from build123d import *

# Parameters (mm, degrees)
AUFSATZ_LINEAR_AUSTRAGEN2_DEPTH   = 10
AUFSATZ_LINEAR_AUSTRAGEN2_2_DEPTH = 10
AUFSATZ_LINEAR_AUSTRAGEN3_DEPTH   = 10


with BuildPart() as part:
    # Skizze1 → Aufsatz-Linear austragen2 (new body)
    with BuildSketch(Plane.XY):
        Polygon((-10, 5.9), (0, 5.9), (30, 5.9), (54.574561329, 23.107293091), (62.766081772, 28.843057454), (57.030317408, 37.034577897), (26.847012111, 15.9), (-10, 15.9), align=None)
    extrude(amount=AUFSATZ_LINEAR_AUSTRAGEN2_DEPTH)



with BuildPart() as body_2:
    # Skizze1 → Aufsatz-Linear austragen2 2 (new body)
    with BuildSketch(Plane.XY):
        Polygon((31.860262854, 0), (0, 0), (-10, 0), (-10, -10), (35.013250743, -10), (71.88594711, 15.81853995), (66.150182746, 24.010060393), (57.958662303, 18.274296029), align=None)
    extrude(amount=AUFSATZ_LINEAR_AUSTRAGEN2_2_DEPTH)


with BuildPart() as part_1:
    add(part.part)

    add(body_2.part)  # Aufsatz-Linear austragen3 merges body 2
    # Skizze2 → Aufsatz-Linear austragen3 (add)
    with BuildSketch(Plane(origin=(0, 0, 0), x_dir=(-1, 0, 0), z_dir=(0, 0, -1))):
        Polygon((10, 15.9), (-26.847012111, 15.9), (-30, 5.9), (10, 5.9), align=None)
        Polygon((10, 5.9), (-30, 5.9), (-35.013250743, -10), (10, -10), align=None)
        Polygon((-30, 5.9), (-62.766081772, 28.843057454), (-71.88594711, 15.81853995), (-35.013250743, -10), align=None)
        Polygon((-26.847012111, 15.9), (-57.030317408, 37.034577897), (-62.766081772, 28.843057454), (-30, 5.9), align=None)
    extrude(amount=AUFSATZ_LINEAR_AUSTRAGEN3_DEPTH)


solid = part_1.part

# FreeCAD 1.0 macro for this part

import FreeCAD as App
import Part
import Sketcher
from FreeCAD import Vector
Q = App.Units.Quantity

doc = App.newDocument("Part")
body = doc.addObject("PartDesign::Body", "Body")

sketch1 = body.newObject("Sketcher::SketchObject", "Sketch")
sketch1.AttachmentSupport = (doc.getObject("XY_Plane"), [""])
sketch1.MapMode = "FlatFace"
sketch1.addGeometry([
    Part.LineSegment(Vector(-10, 6, 0), Vector(30, 6, 0)),
    Part.LineSegment(Vector(30, 6, 0), Vector(55, 23, 0)),
    Part.LineSegment(Vector(55, 23, 0), Vector(63, 29, 0)),
    Part.LineSegment(Vector(63, 29, 0), Vector(57, 37, 0)),
    Part.LineSegment(Vector(57, 37, 0), Vector(27, 16, 0)),
    Part.LineSegment(Vector(27, 16, 0), Vector(-10, 16, 0)),
    Part.LineSegment(Vector(-10, 16, 0), Vector(-10, 6, 0)),
], False)
sketch1.addConstraint([
    Sketcher.Constraint("Coincident", 0, 2, 1, 1),
    Sketcher.Constraint("Coincident", 1, 2, 2, 1),
    Sketcher.Constraint("Coincident", 2, 2, 3, 1),
    Sketcher.Constraint("Coincident", 3, 2, 4, 1),
    Sketcher.Constraint("Coincident", 4, 2, 5, 1),
    Sketcher.Constraint("Coincident", 5, 2, 6, 1),
    Sketcher.Constraint("Coincident", 6, 2, 0, 1),
    Sketcher.Constraint("Horizontal", 0),
    Sketcher.Constraint("Horizontal", 5),
    Sketcher.Constraint("Vertical", 6),
    Sketcher.Constraint("Parallel", 1, 2),
    Sketcher.Constraint("Perpendicular", 2, 3),
    Sketcher.Constraint("Perpendicular", 3, 4),
    Sketcher.Constraint("Equal", 2, 3),
    Sketcher.Constraint("DistanceX", 0, 1, 0, 2, 40.0),
    Sketcher.Constraint("DistanceY", 6, 2, 6, 1, 10.0),
    Sketcher.Constraint("Angle", 1, Q("35 deg")),
    Sketcher.Constraint("Distance", 1, 30.0),
    Sketcher.Constraint("Distance", 2, 10.0),
    Sketcher.Constraint("DistanceX", -1, 1, 0, 2, 30.0),
    Sketcher.Constraint("DistanceY", -1, 1, 0, 2, 5.9),
])
pad1 = body.newObject("PartDesign::Pad", "Pad")
pad1.Profile = sketch1
pad1.Length = 10
body2 = doc.addObject("PartDesign::Body", "Body001")

sketch2 = body2.newObject("Sketcher::SketchObject", "Sketch001")
sketch2.AttachmentSupport = (doc.getObject("XY_Plane001"), [""])
sketch2.MapMode = "FlatFace"
sketch2.addGeometry([
    Part.LineSegment(Vector(32, 0, 0), Vector(-10, 0, 0)),
    Part.LineSegment(Vector(-10, 0, 0), Vector(-10, -10, 0)),
    Part.LineSegment(Vector(-10, -10, 0), Vector(35, -10, 0)),
    Part.LineSegment(Vector(35, -10, 0), Vector(72, 16, 0)),
    Part.LineSegment(Vector(72, 16, 0), Vector(66, 24, 0)),
    Part.LineSegment(Vector(66, 24, 0), Vector(58, 18, 0)),
    Part.LineSegment(Vector(58, 18, 0), Vector(32, 0, 0)),
], False)
sketch2.addConstraint([
    Sketcher.Constraint("Coincident", 0, 2, 1, 1),
    Sketcher.Constraint("Coincident", 1, 2, 2, 1),
    Sketcher.Constraint("Coincident", 2, 2, 3, 1),
    Sketcher.Constraint("Coincident", 3, 2, 4, 1),
    Sketcher.Constraint("Coincident", 4, 2, 5, 1),
    Sketcher.Constraint("Coincident", 5, 2, 6, 1),
    Sketcher.Constraint("Coincident", 6, 2, 0, 1),
    Sketcher.Constraint("Horizontal", 0),
    Sketcher.Constraint("Vertical", 1),
    Sketcher.Constraint("Horizontal", 2),
    Sketcher.Constraint("PointOnObject", 0, 2, -1),
    Sketcher.Constraint("Perpendicular", 3, 4),
    Sketcher.Constraint("Perpendicular", 4, 5),
    Sketcher.Constraint("Parallel", 5, 6),
    Sketcher.Constraint("Equal", 4, 5),
    Sketcher.Constraint("DistanceY", 1, 2, 1, 1, 10.0),
    Sketcher.Constraint("Angle", 3, Q("35 deg")),
    Sketcher.Constraint("Distance", 4, 10.0),
    Sketcher.Constraint("DistanceX", 0, 2, -1, 1, 10.0),
    Sketcher.Constraint("DistanceX", 2, 1, 2, 2, 45.013251),
    Sketcher.Constraint("DistanceX", 6, 2, 5, 2, 26.098399),
])
pad2 = body2.newObject("PartDesign::Pad", "Pad001")
pad2.Profile = sketch2
pad2.Length = 10
body.AllowCompound = True
doc.recompute()

boolean = body.newObject("PartDesign::Boolean", "Boolean")
boolean.Type = "Fuse"
boolean.addObjects([body2])

sketch3 = body.newObject("Sketcher::SketchObject", "Sketch002")
sketch3.AttachmentSupport = (doc.getObject("XY_Plane"), [""])
sketch3.MapMode = "FlatFace"
sketch3.addGeometry([
    Part.LineSegment(Vector(-10, 16, 0), Vector(27, 16, 0)),
    Part.LineSegment(Vector(27, 16, 0), Vector(57, 37, 0)),
    Part.LineSegment(Vector(57, 37, 0), Vector(63, 29, 0)),
    Part.LineSegment(Vector(63, 29, 0), Vector(72, 16, 0)),
    Part.LineSegment(Vector(72, 16, 0), Vector(35, -10, 0)),
    Part.LineSegment(Vector(35, -10, 0), Vector(-10, -10, 0)),
    Part.LineSegment(Vector(-10, -10, 0), Vector(-10, 16, 0)),
], False)
sketch3.addConstraint([
    Sketcher.Constraint("Coincident", 0, 2, 1, 1),
    Sketcher.Constraint("Coincident", 1, 2, 2, 1),
    Sketcher.Constraint("Coincident", 2, 2, 3, 1),
    Sketcher.Constraint("Coincident", 3, 2, 4, 1),
    Sketcher.Constraint("Coincident", 4, 2, 5, 1),
    Sketcher.Constraint("Coincident", 5, 2, 6, 1),
    Sketcher.Constraint("Coincident", 6, 2, 0, 1),
    Sketcher.Constraint("Horizontal", 0),
    Sketcher.Constraint("Horizontal", 5),
    Sketcher.Constraint("Vertical", 6),
    Sketcher.Constraint("Perpendicular", 1, 2),
    Sketcher.Constraint("Parallel", 2, 3),
    Sketcher.Constraint("Perpendicular", 3, 4),
    Sketcher.Constraint("Angle", 1, Q("35 deg")),
    Sketcher.Constraint("Distance", 2, 10.0),
    Sketcher.Constraint("DistanceY", 6, 1, 6, 2, 25.9),
    Sketcher.Constraint("DistanceY", 4, 2, -1, 1, 10.0),
    Sketcher.Constraint("DistanceX", 5, 2, -1, 1, 10.0),
    Sketcher.Constraint("Distance", 3, 15.9),
    Sketcher.Constraint("DistanceX", 5, 2, 5, 1, 45.013251),
    Sketcher.Constraint("Distance", 4, 45.013251),
])
pad3 = body.newObject("PartDesign::Pad", "Pad002")
pad3.Profile = sketch3
pad3.Length = 10
pad3.Reversed = True

doc.recompute()
